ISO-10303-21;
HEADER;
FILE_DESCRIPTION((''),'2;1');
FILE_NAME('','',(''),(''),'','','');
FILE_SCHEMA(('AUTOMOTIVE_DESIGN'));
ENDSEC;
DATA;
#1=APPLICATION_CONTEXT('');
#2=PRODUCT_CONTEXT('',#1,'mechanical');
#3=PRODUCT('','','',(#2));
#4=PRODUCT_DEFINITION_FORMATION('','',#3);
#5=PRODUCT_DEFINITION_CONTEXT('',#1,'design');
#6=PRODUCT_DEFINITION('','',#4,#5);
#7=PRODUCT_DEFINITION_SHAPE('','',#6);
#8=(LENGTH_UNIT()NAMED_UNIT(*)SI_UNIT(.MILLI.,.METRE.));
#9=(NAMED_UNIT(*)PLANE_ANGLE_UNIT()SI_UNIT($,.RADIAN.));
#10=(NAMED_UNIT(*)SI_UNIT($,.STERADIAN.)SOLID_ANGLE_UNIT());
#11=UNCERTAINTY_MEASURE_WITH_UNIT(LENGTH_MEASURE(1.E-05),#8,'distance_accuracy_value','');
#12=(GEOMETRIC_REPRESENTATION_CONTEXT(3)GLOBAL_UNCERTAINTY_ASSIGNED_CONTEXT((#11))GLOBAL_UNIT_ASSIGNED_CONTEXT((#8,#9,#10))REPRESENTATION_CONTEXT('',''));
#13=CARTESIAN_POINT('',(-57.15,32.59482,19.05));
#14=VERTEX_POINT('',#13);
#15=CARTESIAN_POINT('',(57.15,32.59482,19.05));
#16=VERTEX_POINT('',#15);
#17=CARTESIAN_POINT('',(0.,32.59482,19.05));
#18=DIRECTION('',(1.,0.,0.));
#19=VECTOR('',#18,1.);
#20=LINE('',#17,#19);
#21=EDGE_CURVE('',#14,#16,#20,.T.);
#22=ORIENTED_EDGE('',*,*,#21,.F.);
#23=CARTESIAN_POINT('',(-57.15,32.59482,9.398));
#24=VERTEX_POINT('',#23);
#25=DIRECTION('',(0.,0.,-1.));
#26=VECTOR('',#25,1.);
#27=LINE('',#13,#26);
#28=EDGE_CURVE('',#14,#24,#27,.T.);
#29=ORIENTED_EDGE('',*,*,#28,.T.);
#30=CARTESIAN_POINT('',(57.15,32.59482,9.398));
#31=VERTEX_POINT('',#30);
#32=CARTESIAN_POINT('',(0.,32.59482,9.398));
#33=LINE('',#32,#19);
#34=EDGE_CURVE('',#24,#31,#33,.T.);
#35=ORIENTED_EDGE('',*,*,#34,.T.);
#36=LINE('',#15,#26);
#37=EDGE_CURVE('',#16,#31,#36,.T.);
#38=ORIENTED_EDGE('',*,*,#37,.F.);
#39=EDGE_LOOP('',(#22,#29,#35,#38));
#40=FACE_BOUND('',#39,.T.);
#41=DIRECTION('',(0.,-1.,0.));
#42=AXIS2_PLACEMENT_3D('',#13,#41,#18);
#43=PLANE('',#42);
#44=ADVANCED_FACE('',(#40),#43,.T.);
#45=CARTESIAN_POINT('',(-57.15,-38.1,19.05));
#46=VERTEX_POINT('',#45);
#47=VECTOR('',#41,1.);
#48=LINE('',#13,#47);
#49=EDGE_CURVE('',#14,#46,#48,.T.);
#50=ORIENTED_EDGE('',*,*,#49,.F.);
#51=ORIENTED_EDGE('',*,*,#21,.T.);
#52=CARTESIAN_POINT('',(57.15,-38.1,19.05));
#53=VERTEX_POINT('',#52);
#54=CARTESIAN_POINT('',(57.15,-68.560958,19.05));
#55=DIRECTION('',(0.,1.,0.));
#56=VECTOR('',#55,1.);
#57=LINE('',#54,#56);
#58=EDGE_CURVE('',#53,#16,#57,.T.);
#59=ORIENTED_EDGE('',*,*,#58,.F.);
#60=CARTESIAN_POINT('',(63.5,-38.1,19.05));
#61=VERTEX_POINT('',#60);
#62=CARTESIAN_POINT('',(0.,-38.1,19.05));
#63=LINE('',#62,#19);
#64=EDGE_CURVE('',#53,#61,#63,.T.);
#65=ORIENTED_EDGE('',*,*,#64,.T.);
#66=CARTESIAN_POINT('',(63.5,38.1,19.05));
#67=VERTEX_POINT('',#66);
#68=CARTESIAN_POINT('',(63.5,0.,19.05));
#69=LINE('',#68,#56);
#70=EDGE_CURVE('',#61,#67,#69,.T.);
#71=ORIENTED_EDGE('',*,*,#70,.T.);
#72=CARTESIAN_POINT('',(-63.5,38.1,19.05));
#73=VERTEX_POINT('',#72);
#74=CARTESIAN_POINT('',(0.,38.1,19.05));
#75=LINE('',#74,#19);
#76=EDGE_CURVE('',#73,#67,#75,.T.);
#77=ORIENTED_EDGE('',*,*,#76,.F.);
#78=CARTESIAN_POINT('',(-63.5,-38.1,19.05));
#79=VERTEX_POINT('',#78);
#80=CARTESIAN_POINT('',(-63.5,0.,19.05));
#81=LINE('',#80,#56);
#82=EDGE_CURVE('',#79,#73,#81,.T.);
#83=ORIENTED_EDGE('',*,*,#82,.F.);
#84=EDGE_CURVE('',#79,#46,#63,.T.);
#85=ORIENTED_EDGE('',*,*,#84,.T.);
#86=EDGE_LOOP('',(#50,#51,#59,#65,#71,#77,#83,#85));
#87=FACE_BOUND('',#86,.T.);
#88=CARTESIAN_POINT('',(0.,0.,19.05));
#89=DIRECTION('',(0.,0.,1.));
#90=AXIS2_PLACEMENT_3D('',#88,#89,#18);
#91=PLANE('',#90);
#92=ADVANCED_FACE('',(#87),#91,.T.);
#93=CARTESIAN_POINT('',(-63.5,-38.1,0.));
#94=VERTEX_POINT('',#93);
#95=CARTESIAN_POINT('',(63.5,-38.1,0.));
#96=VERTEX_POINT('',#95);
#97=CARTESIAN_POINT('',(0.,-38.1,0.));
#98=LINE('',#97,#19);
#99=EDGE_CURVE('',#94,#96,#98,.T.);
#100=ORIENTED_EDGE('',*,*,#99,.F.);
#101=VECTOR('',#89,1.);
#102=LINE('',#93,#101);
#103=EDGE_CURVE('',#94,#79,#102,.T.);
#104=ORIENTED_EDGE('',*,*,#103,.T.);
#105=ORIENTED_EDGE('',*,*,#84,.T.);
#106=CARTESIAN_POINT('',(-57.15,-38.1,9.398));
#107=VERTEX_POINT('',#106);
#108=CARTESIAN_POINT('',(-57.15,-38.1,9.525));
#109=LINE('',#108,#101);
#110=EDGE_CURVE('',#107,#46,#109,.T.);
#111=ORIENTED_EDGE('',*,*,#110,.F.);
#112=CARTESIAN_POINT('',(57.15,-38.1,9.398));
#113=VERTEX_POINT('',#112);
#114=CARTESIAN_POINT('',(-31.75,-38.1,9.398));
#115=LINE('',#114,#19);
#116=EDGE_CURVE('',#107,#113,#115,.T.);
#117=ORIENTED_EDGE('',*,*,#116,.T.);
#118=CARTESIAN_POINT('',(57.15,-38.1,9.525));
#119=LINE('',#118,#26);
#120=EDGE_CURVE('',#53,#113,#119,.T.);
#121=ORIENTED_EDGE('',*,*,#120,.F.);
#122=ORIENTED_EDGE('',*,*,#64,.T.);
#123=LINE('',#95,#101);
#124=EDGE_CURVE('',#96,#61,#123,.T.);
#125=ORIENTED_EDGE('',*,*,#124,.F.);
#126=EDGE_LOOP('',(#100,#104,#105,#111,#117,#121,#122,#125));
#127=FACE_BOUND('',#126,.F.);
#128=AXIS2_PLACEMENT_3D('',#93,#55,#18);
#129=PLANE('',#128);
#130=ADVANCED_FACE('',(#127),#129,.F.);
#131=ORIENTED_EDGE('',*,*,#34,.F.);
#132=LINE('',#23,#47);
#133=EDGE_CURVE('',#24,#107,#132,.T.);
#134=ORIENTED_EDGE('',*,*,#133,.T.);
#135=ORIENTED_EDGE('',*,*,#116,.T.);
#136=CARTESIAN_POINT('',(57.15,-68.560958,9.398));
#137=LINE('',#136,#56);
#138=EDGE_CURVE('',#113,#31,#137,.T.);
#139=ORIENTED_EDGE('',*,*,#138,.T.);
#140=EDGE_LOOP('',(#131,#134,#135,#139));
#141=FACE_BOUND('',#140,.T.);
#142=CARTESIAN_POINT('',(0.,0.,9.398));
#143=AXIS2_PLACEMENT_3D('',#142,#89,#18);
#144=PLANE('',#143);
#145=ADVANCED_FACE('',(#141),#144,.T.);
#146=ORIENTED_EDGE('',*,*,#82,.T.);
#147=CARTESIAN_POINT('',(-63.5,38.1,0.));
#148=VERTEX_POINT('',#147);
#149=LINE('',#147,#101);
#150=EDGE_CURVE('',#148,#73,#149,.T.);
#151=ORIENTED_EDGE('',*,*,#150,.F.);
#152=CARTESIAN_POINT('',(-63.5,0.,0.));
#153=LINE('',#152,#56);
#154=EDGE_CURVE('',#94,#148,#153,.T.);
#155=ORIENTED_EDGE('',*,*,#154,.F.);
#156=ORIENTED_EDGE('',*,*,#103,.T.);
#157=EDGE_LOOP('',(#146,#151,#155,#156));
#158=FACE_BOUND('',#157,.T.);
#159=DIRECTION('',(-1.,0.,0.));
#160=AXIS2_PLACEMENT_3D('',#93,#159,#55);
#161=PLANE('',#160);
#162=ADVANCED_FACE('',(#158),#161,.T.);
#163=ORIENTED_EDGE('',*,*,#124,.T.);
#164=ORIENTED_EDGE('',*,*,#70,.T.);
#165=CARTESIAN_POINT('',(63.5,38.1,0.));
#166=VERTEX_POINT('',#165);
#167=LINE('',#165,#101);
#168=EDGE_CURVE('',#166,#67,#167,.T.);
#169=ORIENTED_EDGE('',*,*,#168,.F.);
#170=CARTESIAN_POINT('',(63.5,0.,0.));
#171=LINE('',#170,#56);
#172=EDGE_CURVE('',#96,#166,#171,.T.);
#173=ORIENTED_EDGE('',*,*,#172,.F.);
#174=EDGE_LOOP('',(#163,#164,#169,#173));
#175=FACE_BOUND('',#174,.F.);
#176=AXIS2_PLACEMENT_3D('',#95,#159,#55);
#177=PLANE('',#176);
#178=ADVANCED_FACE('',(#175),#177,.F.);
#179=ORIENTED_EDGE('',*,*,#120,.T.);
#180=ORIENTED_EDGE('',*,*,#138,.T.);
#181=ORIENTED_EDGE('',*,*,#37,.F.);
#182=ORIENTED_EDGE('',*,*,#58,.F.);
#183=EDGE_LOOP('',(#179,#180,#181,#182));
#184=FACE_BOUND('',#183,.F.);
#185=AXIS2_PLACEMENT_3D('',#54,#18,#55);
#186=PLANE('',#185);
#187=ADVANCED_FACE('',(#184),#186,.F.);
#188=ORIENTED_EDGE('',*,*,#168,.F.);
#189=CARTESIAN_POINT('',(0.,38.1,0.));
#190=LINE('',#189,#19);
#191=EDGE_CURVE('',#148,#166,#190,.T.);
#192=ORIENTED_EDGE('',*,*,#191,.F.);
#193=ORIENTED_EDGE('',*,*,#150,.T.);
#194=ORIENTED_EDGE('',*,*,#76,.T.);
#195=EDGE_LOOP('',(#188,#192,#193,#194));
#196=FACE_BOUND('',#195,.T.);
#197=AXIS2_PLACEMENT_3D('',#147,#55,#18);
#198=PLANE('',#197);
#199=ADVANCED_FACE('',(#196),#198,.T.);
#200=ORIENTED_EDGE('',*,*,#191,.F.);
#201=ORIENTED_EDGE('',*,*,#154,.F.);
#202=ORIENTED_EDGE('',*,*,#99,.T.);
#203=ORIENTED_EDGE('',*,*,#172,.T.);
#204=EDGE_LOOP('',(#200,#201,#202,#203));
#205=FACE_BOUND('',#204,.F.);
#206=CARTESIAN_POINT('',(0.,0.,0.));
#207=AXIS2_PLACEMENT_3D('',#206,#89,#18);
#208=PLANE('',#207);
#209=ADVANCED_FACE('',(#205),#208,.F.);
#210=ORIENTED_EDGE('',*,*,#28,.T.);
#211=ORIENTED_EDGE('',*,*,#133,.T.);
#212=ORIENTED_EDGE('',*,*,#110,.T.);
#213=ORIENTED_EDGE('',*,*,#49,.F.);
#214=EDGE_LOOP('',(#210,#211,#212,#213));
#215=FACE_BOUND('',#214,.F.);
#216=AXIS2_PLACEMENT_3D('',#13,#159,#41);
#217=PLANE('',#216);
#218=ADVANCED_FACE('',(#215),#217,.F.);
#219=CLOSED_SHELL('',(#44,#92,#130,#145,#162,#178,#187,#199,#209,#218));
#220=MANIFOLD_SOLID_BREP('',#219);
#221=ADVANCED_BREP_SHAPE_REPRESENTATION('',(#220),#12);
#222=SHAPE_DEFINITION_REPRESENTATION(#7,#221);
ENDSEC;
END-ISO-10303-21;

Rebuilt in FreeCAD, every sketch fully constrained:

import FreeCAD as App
import Part
import Sketcher
from FreeCAD import Vector
Q = App.Units.Quantity

doc = App.newDocument("Part")
params = doc.addObject("Spreadsheet::Sheet", "Params")
for row, (alias, value) in enumerate([
    ("sketch1_width", "5 in"),
    ("sketch1_height", "3 in"),
    ("pad1_length", "0.75 in"),
    ("sketch2_width", "4.5 in"),
    ("pocket1_length", "0.38 in"),
], start=1):
    params.set(f"A{row}", alias)
    params.set(f"B{row}", "=" + value)
    params.setAlias(f"B{row}", alias)

body = doc.addObject("PartDesign::Body", "Body")

# Sketch on XY plane
sketch1 = doc.addObject("Sketcher::SketchObject", "Sketch")
body.addObject(sketch1)
sketch1.AttachmentSupport = (doc.XY_Plane, [""])
sketch1.MapMode = "FlatFace"
sketch1.addGeometry(Part.LineSegment(Vector(-64, 38, 0), Vector(-64, -38, 0)), False)
sketch1.addGeometry(Part.LineSegment(Vector(-64, -38, 0), Vector(64, -38, 0)), False)
sketch1.addGeometry(Part.LineSegment(Vector(64, -38, 0), Vector(64, 38, 0)), False)
sketch1.addGeometry(Part.LineSegment(Vector(64, 38, 0), Vector(-64, 38, 0)), False)
sketch1.addConstraint(Sketcher.Constraint("Coincident", 0, 2, 1, 1))
sketch1.addConstraint(Sketcher.Constraint("Coincident", 1, 2, 2, 1))
sketch1.addConstraint(Sketcher.Constraint("Coincident", 2, 2, 3, 1))
sketch1.addConstraint(Sketcher.Constraint("Coincident", 3, 2, 0, 1))
sketch1.addConstraint(Sketcher.Constraint("Vertical", 0))
sketch1.addConstraint(Sketcher.Constraint("Horizontal", 1))
sketch1.addConstraint(Sketcher.Constraint("Vertical", 2))
sketch1.addConstraint(Sketcher.Constraint("Horizontal", 3))
sketch1.addConstraint(Sketcher.Constraint("Symmetric", 0, 2, 2, 2, -1, 1))
sketch1.addConstraint(Sketcher.Constraint("DistanceX", 1, 1, 1, 2, Q("5 in")))
sketch1.addConstraint(Sketcher.Constraint("DistanceY", 0, 2, 0, 1, Q("3 in")))
sketch1.setExpression("Constraints[9]", "Params.sketch1_width")
sketch1.setExpression("Constraints[10]", "Params.sketch1_height")
pad1 = doc.addObject("PartDesign::Pad", "Pad")
body.addObject(pad1)
pad1.Profile = sketch1
pad1.setExpression("Length", "Params.pad1_length")

# Sketch on XY plane
sketch2 = doc.addObject("Sketcher::SketchObject", "Sketch001")
body.addObject(sketch2)
sketch2.AttachmentSupport = (doc.XY_Plane, [""])
sketch2.MapMode = "FlatFace"
sketch2.AttachmentOffset = App.Placement(Vector(0, 0, 0.75 * 25.4), App.Rotation())
sketch2.addGeometry(Part.LineSegment(Vector(-57, 33, 0), Vector(-57, -69, 0)), False)
sketch2.addGeometry(Part.LineSegment(Vector(-57, -69, 0), Vector(57, -69, 0)), False)
sketch2.addGeometry(Part.LineSegment(Vector(57, -69, 0), Vector(57, 33, 0)), False)
sketch2.addGeometry(Part.LineSegment(Vector(57, 33, 0), Vector(-57, 33, 0)), False)
sketch2.addConstraint(Sketcher.Constraint("Coincident", 0, 2, 1, 1))
sketch2.addConstraint(Sketcher.Constraint("Coincident", 1, 2, 2, 1))
sketch2.addConstraint(Sketcher.Constraint("Coincident", 2, 2, 3, 1))
sketch2.addConstraint(Sketcher.Constraint("Coincident", 3, 2, 0, 1))
sketch2.addConstraint(Sketcher.Constraint("Vertical", 0))
sketch2.addConstraint(Sketcher.Constraint("Horizontal", 1))
sketch2.addConstraint(Sketcher.Constraint("Vertical", 2))
sketch2.addConstraint(Sketcher.Constraint("Horizontal", 3))
sketch2.addConstraint(Sketcher.Constraint("DistanceX", 1, 1, 1, 2, Q("4.5 in")))
sketch2.addConstraint(Sketcher.Constraint("DistanceX", 0, 2, -1, 1, Q("2.25 in")))
sketch2.addConstraint(Sketcher.Constraint("DistanceY", 0, 2, 0, 1, 101.155778))
sketch2.addConstraint(Sketcher.Constraint("DistanceY", 0, 2, -1, 1, 68.560958))
sketch2.setExpression("Constraints[8]", "Params.sketch2_width")
pocket1 = doc.addObject("PartDesign::Pocket", "Pocket")
body.addObject(pocket1)
pocket1.Profile = sketch2
pocket1.setExpression("Length", "Params.pocket1_length")

doc.recompute()
